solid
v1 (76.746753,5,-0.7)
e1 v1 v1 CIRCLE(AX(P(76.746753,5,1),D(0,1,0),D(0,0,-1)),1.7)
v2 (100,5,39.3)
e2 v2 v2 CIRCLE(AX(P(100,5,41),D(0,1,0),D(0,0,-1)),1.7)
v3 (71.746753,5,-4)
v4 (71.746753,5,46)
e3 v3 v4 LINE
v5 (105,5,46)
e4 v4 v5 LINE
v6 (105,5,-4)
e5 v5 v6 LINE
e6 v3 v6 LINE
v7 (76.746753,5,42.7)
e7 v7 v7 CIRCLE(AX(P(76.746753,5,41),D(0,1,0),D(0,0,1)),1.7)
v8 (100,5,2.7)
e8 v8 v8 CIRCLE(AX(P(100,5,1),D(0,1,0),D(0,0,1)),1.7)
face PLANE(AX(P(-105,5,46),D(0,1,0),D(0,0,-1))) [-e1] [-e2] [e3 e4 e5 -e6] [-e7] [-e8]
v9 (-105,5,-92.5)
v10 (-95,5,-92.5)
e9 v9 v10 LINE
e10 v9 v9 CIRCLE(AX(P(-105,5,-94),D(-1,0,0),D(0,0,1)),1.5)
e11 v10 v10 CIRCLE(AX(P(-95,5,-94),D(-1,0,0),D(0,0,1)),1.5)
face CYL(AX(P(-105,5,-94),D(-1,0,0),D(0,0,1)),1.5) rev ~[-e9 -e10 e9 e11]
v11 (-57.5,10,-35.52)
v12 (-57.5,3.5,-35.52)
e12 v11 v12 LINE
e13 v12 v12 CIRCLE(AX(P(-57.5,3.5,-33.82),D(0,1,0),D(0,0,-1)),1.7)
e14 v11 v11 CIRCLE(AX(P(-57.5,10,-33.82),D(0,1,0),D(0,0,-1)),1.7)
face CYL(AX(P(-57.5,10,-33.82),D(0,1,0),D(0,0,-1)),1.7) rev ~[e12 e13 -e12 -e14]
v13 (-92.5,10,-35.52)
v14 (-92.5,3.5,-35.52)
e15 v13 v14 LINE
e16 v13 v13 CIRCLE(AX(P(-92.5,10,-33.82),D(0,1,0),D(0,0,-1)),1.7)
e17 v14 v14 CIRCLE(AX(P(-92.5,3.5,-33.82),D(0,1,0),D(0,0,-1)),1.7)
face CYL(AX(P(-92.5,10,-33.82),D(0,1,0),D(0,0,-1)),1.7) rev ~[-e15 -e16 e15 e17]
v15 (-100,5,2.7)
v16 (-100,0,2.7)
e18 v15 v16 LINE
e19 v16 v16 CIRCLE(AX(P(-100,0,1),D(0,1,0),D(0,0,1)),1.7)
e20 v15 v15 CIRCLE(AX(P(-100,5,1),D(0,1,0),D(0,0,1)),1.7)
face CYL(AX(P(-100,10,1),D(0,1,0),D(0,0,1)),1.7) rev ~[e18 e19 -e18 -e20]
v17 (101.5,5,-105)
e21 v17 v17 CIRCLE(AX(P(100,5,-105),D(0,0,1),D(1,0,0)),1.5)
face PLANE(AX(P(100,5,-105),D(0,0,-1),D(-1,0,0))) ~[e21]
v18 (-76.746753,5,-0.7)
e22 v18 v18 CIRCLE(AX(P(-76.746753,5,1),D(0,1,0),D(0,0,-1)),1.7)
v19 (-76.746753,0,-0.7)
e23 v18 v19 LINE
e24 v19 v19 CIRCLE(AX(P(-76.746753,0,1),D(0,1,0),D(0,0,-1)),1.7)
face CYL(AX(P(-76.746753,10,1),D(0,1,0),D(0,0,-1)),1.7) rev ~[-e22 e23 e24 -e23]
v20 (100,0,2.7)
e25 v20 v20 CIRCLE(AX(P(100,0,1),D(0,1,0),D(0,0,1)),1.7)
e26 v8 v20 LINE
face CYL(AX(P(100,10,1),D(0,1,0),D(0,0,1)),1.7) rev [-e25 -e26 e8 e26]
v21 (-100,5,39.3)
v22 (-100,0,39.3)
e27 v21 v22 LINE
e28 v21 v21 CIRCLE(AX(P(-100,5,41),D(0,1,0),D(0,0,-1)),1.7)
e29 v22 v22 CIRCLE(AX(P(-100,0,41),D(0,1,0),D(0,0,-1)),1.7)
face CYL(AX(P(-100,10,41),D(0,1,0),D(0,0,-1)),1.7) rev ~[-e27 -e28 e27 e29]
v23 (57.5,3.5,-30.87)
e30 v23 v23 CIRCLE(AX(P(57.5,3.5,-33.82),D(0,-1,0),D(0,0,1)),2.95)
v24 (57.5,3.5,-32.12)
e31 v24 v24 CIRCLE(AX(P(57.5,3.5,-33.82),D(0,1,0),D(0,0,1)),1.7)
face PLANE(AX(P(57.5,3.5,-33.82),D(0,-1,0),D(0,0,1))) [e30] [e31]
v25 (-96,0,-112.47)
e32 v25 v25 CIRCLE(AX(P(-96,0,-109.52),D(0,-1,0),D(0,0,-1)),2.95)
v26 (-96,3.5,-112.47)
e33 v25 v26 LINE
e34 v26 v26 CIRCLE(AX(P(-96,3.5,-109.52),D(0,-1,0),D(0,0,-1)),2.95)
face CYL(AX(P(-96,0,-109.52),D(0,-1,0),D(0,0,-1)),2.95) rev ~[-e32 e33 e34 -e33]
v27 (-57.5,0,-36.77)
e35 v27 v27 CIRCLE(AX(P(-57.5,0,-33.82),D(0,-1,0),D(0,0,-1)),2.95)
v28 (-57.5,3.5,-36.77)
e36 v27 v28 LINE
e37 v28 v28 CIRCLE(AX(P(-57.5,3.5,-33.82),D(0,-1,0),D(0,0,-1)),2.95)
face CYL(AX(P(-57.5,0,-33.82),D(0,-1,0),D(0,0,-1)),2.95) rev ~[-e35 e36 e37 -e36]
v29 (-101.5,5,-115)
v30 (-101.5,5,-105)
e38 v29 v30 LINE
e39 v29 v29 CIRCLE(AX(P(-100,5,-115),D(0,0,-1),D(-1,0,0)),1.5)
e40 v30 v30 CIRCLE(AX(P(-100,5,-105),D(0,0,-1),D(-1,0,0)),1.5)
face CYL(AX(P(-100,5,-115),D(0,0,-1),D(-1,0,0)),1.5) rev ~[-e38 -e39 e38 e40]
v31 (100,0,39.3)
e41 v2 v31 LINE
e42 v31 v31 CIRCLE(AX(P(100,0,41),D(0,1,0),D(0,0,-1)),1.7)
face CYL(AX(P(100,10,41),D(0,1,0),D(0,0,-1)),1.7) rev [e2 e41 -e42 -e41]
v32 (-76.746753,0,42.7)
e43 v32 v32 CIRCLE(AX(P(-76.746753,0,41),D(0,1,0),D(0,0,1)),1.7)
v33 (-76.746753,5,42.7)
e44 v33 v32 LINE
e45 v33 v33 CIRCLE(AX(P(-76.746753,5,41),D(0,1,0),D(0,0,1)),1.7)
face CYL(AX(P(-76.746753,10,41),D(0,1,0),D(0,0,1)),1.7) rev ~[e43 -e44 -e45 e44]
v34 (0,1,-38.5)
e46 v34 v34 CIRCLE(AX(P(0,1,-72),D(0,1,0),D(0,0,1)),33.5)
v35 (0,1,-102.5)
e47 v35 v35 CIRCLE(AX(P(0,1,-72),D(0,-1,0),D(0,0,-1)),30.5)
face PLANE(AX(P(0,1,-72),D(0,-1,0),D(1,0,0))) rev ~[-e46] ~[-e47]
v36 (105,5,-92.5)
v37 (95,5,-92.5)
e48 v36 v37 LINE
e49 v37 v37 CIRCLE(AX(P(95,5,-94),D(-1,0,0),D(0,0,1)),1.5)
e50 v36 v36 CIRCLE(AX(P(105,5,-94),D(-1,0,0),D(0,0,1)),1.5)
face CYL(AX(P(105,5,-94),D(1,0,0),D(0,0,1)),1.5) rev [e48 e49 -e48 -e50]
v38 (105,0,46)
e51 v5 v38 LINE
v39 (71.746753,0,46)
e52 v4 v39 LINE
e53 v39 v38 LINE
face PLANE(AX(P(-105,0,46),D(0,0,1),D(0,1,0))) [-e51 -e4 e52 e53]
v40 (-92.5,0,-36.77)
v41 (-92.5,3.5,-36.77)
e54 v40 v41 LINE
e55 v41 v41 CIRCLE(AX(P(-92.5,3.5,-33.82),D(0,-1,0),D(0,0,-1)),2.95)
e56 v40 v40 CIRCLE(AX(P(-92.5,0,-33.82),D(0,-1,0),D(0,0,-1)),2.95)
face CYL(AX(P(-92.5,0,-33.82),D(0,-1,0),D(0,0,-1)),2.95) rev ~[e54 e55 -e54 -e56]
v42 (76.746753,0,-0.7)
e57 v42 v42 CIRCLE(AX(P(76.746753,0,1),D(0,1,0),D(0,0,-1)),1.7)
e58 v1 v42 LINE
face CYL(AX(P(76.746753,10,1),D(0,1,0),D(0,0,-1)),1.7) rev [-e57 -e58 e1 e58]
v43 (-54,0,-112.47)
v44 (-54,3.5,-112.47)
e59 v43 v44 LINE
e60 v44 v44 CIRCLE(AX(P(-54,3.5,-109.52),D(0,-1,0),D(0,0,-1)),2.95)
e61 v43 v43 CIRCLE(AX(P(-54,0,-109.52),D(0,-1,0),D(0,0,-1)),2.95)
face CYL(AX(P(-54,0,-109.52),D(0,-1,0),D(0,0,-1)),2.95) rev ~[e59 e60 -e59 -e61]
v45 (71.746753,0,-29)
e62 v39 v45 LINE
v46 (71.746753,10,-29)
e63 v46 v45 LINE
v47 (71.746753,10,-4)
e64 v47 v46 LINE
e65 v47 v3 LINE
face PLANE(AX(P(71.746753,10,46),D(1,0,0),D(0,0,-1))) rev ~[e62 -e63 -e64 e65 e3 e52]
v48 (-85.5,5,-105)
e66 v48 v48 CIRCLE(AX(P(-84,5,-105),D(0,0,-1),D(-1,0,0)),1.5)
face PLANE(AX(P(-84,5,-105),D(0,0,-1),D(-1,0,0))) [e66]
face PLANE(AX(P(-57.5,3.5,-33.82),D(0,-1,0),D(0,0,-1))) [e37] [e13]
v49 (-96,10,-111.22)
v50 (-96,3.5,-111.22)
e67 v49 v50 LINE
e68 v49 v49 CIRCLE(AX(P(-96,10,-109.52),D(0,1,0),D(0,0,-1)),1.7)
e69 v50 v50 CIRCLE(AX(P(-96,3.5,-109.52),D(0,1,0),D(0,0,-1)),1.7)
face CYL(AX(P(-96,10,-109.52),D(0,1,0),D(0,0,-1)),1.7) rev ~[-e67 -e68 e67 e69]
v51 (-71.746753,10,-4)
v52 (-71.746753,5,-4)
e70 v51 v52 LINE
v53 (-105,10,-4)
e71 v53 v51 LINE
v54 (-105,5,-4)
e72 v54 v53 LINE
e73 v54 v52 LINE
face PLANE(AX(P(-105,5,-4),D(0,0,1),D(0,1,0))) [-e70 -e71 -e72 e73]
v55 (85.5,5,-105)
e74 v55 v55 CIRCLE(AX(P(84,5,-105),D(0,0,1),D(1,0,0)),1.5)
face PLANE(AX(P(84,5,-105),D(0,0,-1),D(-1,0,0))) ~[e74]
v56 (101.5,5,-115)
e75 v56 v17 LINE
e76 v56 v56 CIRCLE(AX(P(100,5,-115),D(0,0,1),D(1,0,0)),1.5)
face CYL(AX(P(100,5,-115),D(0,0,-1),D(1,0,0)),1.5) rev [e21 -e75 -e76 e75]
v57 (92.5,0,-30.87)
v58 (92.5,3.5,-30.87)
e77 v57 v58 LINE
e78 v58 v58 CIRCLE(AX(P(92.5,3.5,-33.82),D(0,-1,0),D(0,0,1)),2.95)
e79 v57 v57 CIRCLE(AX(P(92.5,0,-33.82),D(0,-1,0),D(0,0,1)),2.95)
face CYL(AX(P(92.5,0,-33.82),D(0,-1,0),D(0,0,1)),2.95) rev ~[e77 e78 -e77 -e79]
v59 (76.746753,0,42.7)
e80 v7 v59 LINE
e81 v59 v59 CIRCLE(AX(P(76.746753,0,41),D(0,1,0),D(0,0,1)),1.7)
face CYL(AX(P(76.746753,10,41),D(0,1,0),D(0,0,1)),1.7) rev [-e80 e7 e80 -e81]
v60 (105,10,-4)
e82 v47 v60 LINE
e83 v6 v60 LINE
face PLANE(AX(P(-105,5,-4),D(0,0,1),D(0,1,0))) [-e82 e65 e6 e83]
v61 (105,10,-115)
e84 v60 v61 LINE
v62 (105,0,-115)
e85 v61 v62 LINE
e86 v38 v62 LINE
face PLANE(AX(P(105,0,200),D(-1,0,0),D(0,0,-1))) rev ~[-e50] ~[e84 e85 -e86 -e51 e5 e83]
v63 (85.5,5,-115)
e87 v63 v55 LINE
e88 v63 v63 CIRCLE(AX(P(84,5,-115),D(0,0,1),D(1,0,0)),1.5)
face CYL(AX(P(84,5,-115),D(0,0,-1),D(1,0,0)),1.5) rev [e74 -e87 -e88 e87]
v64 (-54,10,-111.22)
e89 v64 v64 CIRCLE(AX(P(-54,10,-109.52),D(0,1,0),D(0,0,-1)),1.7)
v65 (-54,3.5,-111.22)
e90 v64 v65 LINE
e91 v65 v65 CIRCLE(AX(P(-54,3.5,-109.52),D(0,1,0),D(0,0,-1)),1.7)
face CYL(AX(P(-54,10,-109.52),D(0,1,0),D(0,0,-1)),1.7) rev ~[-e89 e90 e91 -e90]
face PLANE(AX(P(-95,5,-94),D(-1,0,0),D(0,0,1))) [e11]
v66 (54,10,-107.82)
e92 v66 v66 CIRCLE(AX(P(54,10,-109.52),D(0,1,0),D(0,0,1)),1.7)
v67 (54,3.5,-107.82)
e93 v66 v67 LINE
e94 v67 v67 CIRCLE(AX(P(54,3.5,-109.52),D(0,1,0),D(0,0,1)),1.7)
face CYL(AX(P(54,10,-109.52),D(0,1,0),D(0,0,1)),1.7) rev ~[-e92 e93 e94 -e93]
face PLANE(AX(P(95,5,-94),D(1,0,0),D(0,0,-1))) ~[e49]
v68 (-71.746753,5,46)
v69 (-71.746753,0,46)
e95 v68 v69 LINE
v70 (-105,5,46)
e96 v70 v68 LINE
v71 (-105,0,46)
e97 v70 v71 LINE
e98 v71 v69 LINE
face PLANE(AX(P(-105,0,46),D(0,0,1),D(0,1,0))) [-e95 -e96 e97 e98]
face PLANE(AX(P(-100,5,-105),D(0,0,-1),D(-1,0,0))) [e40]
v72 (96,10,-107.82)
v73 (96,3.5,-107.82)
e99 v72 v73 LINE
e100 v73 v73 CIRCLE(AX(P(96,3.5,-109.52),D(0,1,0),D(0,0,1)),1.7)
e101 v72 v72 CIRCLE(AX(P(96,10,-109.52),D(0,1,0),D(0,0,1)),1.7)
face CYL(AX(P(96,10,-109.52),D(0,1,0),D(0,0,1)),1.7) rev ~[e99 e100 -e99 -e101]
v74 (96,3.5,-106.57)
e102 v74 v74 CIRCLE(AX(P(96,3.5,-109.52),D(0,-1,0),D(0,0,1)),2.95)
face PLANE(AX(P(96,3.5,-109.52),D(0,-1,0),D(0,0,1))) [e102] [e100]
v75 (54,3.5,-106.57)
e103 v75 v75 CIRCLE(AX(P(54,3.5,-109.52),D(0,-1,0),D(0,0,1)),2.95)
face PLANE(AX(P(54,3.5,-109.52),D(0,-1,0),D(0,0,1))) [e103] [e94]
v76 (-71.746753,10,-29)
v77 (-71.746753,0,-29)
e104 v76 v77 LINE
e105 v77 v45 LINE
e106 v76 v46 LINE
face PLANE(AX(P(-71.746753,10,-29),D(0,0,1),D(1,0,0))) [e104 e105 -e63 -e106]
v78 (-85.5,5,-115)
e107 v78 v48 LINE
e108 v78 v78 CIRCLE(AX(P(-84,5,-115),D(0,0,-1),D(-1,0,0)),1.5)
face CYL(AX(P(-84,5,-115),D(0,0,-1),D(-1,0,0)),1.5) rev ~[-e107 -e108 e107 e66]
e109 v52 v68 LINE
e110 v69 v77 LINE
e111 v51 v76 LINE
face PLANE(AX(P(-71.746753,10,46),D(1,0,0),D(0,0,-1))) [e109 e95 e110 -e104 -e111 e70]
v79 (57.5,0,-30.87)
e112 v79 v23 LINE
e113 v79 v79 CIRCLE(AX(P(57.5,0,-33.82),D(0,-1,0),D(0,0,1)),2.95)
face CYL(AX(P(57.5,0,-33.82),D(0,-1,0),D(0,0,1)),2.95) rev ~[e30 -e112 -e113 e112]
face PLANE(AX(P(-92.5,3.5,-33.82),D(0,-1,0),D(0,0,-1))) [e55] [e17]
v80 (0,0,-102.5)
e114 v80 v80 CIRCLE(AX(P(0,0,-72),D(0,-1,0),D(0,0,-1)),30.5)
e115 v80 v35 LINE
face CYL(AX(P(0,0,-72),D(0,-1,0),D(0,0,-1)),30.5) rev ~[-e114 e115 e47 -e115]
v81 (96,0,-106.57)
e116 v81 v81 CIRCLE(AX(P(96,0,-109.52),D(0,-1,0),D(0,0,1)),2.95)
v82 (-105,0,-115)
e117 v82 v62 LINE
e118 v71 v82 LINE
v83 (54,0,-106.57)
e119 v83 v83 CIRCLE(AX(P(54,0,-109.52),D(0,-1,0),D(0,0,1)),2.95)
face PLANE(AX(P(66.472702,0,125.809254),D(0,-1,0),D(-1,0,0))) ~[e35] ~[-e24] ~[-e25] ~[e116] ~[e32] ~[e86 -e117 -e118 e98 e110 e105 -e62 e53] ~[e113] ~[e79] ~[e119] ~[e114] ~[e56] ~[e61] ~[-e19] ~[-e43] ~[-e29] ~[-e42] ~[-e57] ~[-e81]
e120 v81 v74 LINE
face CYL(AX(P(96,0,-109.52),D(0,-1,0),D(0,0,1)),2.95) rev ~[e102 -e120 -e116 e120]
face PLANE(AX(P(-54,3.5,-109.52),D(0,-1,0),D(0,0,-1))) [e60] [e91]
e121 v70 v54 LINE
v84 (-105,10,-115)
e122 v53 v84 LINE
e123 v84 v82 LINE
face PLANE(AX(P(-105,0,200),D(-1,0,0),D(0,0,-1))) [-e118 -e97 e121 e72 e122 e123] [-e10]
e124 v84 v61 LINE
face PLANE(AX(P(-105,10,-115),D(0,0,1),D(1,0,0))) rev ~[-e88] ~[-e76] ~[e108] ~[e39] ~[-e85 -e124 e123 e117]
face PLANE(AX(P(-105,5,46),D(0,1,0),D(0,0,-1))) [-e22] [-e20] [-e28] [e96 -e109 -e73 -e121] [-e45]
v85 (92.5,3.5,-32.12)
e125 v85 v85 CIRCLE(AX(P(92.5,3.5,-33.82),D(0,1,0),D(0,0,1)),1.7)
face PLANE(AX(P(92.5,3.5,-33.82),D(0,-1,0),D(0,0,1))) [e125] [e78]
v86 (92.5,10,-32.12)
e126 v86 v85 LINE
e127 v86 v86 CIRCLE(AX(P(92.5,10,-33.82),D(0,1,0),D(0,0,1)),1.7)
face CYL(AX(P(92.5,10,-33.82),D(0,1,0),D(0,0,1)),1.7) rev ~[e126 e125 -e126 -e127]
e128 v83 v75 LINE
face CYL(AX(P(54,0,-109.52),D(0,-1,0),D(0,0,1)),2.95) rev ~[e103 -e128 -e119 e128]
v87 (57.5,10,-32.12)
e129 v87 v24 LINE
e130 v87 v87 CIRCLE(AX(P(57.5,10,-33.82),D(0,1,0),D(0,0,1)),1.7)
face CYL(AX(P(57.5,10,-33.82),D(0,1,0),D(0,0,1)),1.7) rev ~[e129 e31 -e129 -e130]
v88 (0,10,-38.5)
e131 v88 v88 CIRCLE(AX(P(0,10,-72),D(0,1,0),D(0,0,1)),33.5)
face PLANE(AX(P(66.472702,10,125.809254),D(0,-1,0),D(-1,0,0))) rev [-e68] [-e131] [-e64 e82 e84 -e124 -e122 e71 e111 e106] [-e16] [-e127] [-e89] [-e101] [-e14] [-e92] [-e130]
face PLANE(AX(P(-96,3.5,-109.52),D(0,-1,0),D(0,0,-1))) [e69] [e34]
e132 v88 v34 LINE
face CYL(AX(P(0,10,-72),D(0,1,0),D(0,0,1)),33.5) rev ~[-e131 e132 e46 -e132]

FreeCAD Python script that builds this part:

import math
import FreeCAD as App
import Part
import Sketcher
Q = App.Units.Quantity

doc = App.newDocument("Part")
body = doc.addObject("PartDesign::Body", "Body")

# Sketch on XZ plane
sketch1 = body.newObject("Sketcher::SketchObject", "Sketch")
sketch1.AttachmentSupport = (doc.getObject("XZ_Plane"), [""])
sketch1.MapMode = "FlatFace"
sketch1.addGeometry(Part.LineSegment(App.Vector(-105, -200, 0), App.Vector(-105, 200, 0)), False)
sketch1.addGeometry(Part.LineSegment(App.Vector(-105, 200, 0), App.Vector(105, 200, 0)), False)
sketch1.addGeometry(Part.LineSegment(App.Vector(105, 200, 0), App.Vector(105, -200, 0)), False)
sketch1.addGeometry(Part.LineSegment(App.Vector(105, -200, 0), App.Vector(-105, -200, 0)), False)
sketch1.addConstraint(Sketcher.Constraint("Coincident", 0, 2, 1, 1))
sketch1.addConstraint(Sketcher.Constraint("Coincident", 1, 2, 2, 1))
sketch1.addConstraint(Sketcher.Constraint("Coincident", 2, 2, 3, 1))
sketch1.addConstraint(Sketcher.Constraint("Coincident", 3, 2, 0, 1))
sketch1.addConstraint(Sketcher.Constraint("Vertical", 0))
sketch1.addConstraint(Sketcher.Constraint("Horizontal", 1))
sketch1.addConstraint(Sketcher.Constraint("Vertical", 2))
sketch1.addConstraint(Sketcher.Constraint("Horizontal", 3))
sketch1.addConstraint(Sketcher.Constraint("Symmetric", 0, 2, 2, 2, -1, 1))
sketch1.addConstraint(Sketcher.Constraint("DistanceX", 1, 1, 1, 2, Q("210 mm")))
sketch1.addConstraint(Sketcher.Constraint("DistanceY", 0, 1, 0, 2, Q("400 mm")))
pad1 = body.newObject("PartDesign::Pad", "Pad")
pad1.Profile = sketch1
pad1.Length = 10
pad1.Reversed = True

# Sketch on XZ plane
sketch2 = body.newObject("Sketcher::SketchObject", "Sketch001")
sketch2.AttachmentSupport = (doc.getObject("XZ_Plane"), [""])
sketch2.MapMode = "FlatFace"
sketch2.AttachmentOffset = App.Placement(App.Vector(0, 0, -10), App.Rotation())
sketch2.addGeometry(Part.LineSegment(App.Vector(18, 200, 0), App.Vector(105, 200, 0)), False)
sketch2.addGeometry(Part.LineSegment(App.Vector(105, 200, 0), App.Vector(105, 46, 0)), False)
sketch2.addGeometry(Part.LineSegment(App.Vector(105, 46, 0), App.Vector(18, 200, 0)), False)
sketch2.addGeometry(Part.LineSegment(App.Vector(-18, 200, 0), App.Vector(-105, 46, 0)), False)
sketch2.addGeometry(Part.LineSegment(App.Vector(-105, 46, 0), App.Vector(-105, 200, 0)), False)
sketch2.addGeometry(Part.LineSegment(App.Vector(-105, 200, 0), App.Vector(-18, 200, 0)), False)
sketch2.addGeometry(Part.LineSegment(App.Vector(-105, -200, 0), App.Vector(-105, -115, 0)), False)
sketch2.addGeometry(Part.LineSegment(App.Vector(-105, -115, 0), App.Vector(105, -115, 0)), False)
sketch2.addGeometry(Part.LineSegment(App.Vector(105, -115, 0), App.Vector(105, -200, 0)), False)
sketch2.addGeometry(Part.LineSegment(App.Vector(105, -200, 0), App.Vector(-105, -200, 0)), False)
sketch2.addGeometry(Part.LineSegment(App.Vector(72, 46, 0), App.Vector(-72, 46, 0)), False)
sketch2.addGeometry(Part.LineSegment(App.Vector(-72, 46, 0), App.Vector(-3, 168, 0)), False)
sketch2.addGeometry(Part.LineSegment(App.Vector(-3, 168, 0), App.Vector(3, 168, 0)), False)
sketch2.addGeometry(Part.LineSegment(App.Vector(3, 168, 0), App.Vector(72, 46, 0)), False)
sketch2.addConstraint(Sketcher.Constraint("Coincident", 0, 2, 1, 1))
sketch2.addConstraint(Sketcher.Constraint("Coincident", 1, 2, 2, 1))
sketch2.addConstraint(Sketcher.Constraint("Coincident", 2, 2, 0, 1))
sketch2.addConstraint(Sketcher.Constraint("Coincident", 3, 2, 4, 1))
sketch2.addConstraint(Sketcher.Constraint("Coincident", 4, 2, 5, 1))
sketch2.addConstraint(Sketcher.Constraint("Coincident", 5, 2, 3, 1))
sketch2.addConstraint(Sketcher.Constraint("Coincident", 6, 2, 7, 1))
sketch2.addConstraint(Sketcher.Constraint("Coincident", 7, 2, 8, 1))
sketch2.addConstraint(Sketcher.Constraint("Coincident", 8, 2, 9, 1))
sketch2.addConstraint(Sketcher.Constraint("Coincident", 9, 2, 6, 1))
sketch2.addConstraint(Sketcher.Constraint("Coincident", 10, 2, 11, 1))
sketch2.addConstraint(Sketcher.Constraint("Coincident", 11, 2, 12, 1))
sketch2.addConstraint(Sketcher.Constraint("Coincident", 12, 2, 13, 1))
sketch2.addConstraint(Sketcher.Constraint("Coincident", 13, 2, 10, 1))
sketch2.addConstraint(Sketcher.Constraint("Horizontal", 0))
sketch2.addConstraint(Sketcher.Constraint("Vertical", 1))
sketch2.addConstraint(Sketcher.Constraint("Vertical", 4))
sketch2.addConstraint(Sketcher.Constraint("Horizontal", 5))
sketch2.addConstraint(Sketcher.Constraint("Vertical", 6))
sketch2.addConstraint(Sketcher.Constraint("Horizontal", 7))
sketch2.addConstraint(Sketcher.Constraint("Vertical", 8))
sketch2.addConstraint(Sketcher.Constraint("Horizontal", 9))
sketch2.addConstraint(Sketcher.Constraint("Horizontal", 10))
sketch2.addConstraint(Sketcher.Constraint("Horizontal", 12))
sketch2.addConstraint(Sketcher.Constraint("Symmetric", 4, 2, 8, 2, -1, 1))
sketch2.addConstraint(Sketcher.Constraint("Symmetric", 0, 2, 9, 2, -1, 1))
sketch2.addConstraint(Sketcher.Constraint("Symmetric", 1, 2, 3, 2, -2))
sketch2.addConstraint(Sketcher.Constraint("Parallel", 3, 11))
sketch2.addConstraint(Sketcher.Constraint("Parallel", 2, 13))
sketch2.addConstraint(Sketcher.Constraint("Horizontal", 3, 2, 10, 2))
sketch2.addConstraint(Sketcher.Constraint("Equal", 0, 5))
sketch2.addConstraint(Sketcher.Constraint("DistanceX", 0, 1, 0, 2, Q("87 mm")))
sketch2.addConstraint(Sketcher.Constraint("DistanceX", 7, 1, 7, 2, Q("210 mm")))
sketch2.addConstraint(Sketcher.Constraint("DistanceY", 1, 2, 1, 1, Q("154 mm")))
sketch2.addConstraint(Sketcher.Constraint("DistanceY", 6, 1, 6, 2, Q("85 mm")))
sketch2.addConstraint(Sketcher.Constraint("DistanceY", -1, 1, 0, 2, Q("200 mm")))
sketch2.addConstraint(Sketcher.Constraint("DistanceY", -1, 1, 11, 2, Q("168 mm")))
sketch2.addConstraint(Sketcher.Constraint("DistanceX", 12, 1, 12, 2, Q("5.649351 mm")))
sketch2.addConstraint(Sketcher.Constraint("DistanceX", 10, 2, -1, 1, Q("71.746753 mm")))
pocket1 = body.newObject("PartDesign::Pocket", "Pocket")
pocket1.Profile = sketch2
pocket1.Length = 10
pocket1.Reversed = True

# Sketch on XZ plane
sketch3 = body.newObject("Sketcher::SketchObject", "Sketch002")
sketch3.AttachmentSupport = (doc.getObject("XZ_Plane"), [""])
sketch3.MapMode = "FlatFace"
sketch3.AttachmentOffset = App.Placement(App.Vector(0, 0, -10), App.Rotation())
sketch3.addGeometry(Part.Circle(App.Vector(-11, 195, 0), App.Vector(0, 0, 1), 1.7), False)
sketch3.addGeometry(Part.Circle(App.Vector(-11, 178.2, 0), App.Vector(0, 0, 1), 1.7), False)
sketch3.addGeometry(Part.Circle(App.Vector(11, 195, 0), App.Vector(0, 0, 1), 1.7), False)
sketch3.addGeometry(Part.Circle(App.Vector(11, 178.2, 0), App.Vector(0, 0, 1), 1.7), False)
sketch3.addConstraint(Sketcher.Constraint("Equal", 0, 1))
sketch3.addConstraint(Sketcher.Constraint("Equal", 1, 2))
sketch3.addConstraint(Sketcher.Constraint("Equal", 2, 3))
sketch3.addConstraint(Sketcher.Constraint("Symmetric", 0, 3, 2, 3, -2))
sketch3.addConstraint(Sketcher.Constraint("Symmetric", 1, 3, 3, 3, -2))
sketch3.addConstraint(Sketcher.Constraint("Vertical", 0, 3, 1, 3))
sketch3.addConstraint(Sketcher.Constraint("Diameter", 0, Q("3.4 mm")))
sketch3.addConstraint(Sketcher.Constraint("DistanceX", 0, 3, -1, 1, Q("11 mm")))
sketch3.addConstraint(Sketcher.Constraint("DistanceY", -1, 1, 0, 3, Q("195 mm")))
sketch3.addConstraint(Sketcher.Constraint("DistanceY", -1, 1, 1, 3, Q("178.18 mm")))
pocket2 = body.newObject("PartDesign::Pocket", "Pocket001")
pocket2.Profile = sketch3
pocket2.Type = "ThroughAll"
pocket2.Reversed = True

# Sketch on XZ plane
sketch4 = body.newObject("Sketcher::SketchObject", "Sketch003")
sketch4.AttachmentSupport = (doc.getObject("XZ_Plane"), [""])
sketch4.MapMode = "FlatFace"
sketch4.addGeometry(Part.LineSegment(App.Vector(-8.1, 196.7, 0), App.Vector(-11, 198.4, 0)), False)
sketch4.addGeometry(Part.LineSegment(App.Vector(-11, 198.4, 0), App.Vector(-13.9, 196.7, 0)), False)
sketch4.addGeometry(Part.LineSegment(App.Vector(-13.9, 196.7, 0), App.Vector(-13.9, 193.3, 0)), False)
sketch4.addGeometry(Part.LineSegment(App.Vector(-13.9, 193.3, 0), App.Vector(-11, 191.6, 0)), False)
sketch4.addGeometry(Part.LineSegment(App.Vector(-11, 191.6, 0), App.Vector(-8.1, 193.3, 0)), False)
sketch4.addGeometry(Part.LineSegment(App.Vector(-8.1, 193.3, 0), App.Vector(-8.1, 196.7, 0)), False)
sketch4.addGeometry(Part.LineSegment(App.Vector(11, 198.4, 0), App.Vector(8.1, 196.7, 0)), False)
sketch4.addGeometry(Part.LineSegment(App.Vector(8.1, 196.7, 0), App.Vector(8.1, 193.3, 0)), False)
sketch4.addGeometry(Part.LineSegment(App.Vector(8.1, 193.3, 0), App.Vector(11, 191.6, 0)), False)
sketch4.addGeometry(Part.LineSegment(App.Vector(11, 191.6, 0), App.Vector(13.9, 193.3, 0)), False)
sketch4.addGeometry(Part.LineSegment(App.Vector(13.9, 193.3, 0), App.Vector(13.9, 196.7, 0)), False)
sketch4.addGeometry(Part.LineSegment(App.Vector(13.9, 196.7, 0), App.Vector(11, 198.4, 0)), False)
sketch4.addGeometry(Part.LineSegment(App.Vector(-8.1, 176.5, 0), App.Vector(-8.1, 179.9, 0)), False)
sketch4.addGeometry(Part.LineSegment(App.Vector(-8.1, 179.9, 0), App.Vector(-11, 181.6, 0)), False)
sketch4.addGeometry(Part.LineSegment(App.Vector(-11, 181.6, 0), App.Vector(-13.9, 179.9, 0)), False)
sketch4.addGeometry(Part.LineSegment(App.Vector(-13.9, 179.9, 0), App.Vector(-13.9, 176.5, 0)), False)
sketch4.addGeometry(Part.LineSegment(App.Vector(-13.9, 176.5, 0), App.Vector(-11, 174.8, 0)), False)
sketch4.addGeometry(Part.LineSegment(App.Vector(-11, 174.8, 0), App.Vector(-8.1, 176.5, 0)), False)
sketch4.addGeometry(Part.LineSegment(App.Vector(8.1, 179.9, 0), App.Vector(8.1, 176.5, 0)), False)
sketch4.addGeometry(Part.LineSegment(App.Vector(8.1, 176.5, 0), App.Vector(11, 174.8, 0)), False)
sketch4.addGeometry(Part.LineSegment(App.Vector(11, 174.8, 0), App.Vector(13.9, 176.5, 0)), False)
sketch4.addGeometry(Part.LineSegment(App.Vector(13.9, 176.5, 0), App.Vector(13.9, 179.9, 0)), False)
sketch4.addGeometry(Part.LineSegment(App.Vector(13.9, 179.9, 0), App.Vector(11, 181.6, 0)), False)
sketch4.addGeometry(Part.LineSegment(App.Vector(11, 181.6, 0), App.Vector(8.1, 179.9, 0)), False)
sketch4.addConstraint(Sketcher.Constraint("Coincident", 0, 2, 1, 1))
sketch4.addConstraint(Sketcher.Constraint("Coincident", 1, 2, 2, 1))
sketch4.addConstraint(Sketcher.Constraint("Coincident", 2, 2, 3, 1))
sketch4.addConstraint(Sketcher.Constraint("Coincident", 3, 2, 4, 1))
sketch4.addConstraint(Sketcher.Constraint("Coincident", 4, 2, 5, 1))
sketch4.addConstraint(Sketcher.Constraint("Coincident", 5, 2, 0, 1))
sketch4.addConstraint(Sketcher.Constraint("Coincident", 6, 2, 7, 1))
sketch4.addConstraint(Sketcher.Constraint("Coincident", 7, 2, 8, 1))
sketch4.addConstraint(Sketcher.Constraint("Coincident", 8, 2, 9, 1))
sketch4.addConstraint(Sketcher.Constraint("Coincident", 9, 2, 10, 1))
sketch4.addConstraint(Sketcher.Constraint("Coincident", 10, 2, 11, 1))
sketch4.addConstraint(Sketcher.Constraint("Coincident", 11, 2, 6, 1))
sketch4.addConstraint(Sketcher.Constraint("Coincident", 12, 2, 13, 1))
sketch4.addConstraint(Sketcher.Constraint("Coincident", 13, 2, 14, 1))
sketch4.addConstraint(Sketcher.Constraint("Coincident", 14, 2, 15, 1))
sketch4.addConstraint(Sketcher.Constraint("Coincident", 15, 2, 16, 1))
sketch4.addConstraint(Sketcher.Constraint("Coincident", 16, 2, 17, 1))
sketch4.addConstraint(Sketcher.Constraint("Coincident", 17, 2, 12, 1))
sketch4.addConstraint(Sketcher.Constraint("Coincident", 18, 2, 19, 1))
sketch4.addConstraint(Sketcher.Constraint("Coincident", 19, 2, 20, 1))
sketch4.addConstraint(Sketcher.Constraint("Coincident", 20, 2, 21, 1))
sketch4.addConstraint(Sketcher.Constraint("Coincident", 21, 2, 22, 1))
sketch4.addConstraint(Sketcher.Constraint("Coincident", 22, 2, 23, 1))
sketch4.addConstraint(Sketcher.Constraint("Coincident", 23, 2, 18, 1))
sketch4.addConstraint(Sketcher.Constraint("Vertical", 2))
sketch4.addConstraint(Sketcher.Constraint("Vertical", 5))
sketch4.addConstraint(Sketcher.Constraint("Vertical", 7))
sketch4.addConstraint(Sketcher.Constraint("Vertical", 10))
sketch4.addConstraint(Sketcher.Constraint("Vertical", 12))
sketch4.addConstraint(Sketcher.Constraint("Vertical", 15))
sketch4.addConstraint(Sketcher.Constraint("Vertical", 18))
sketch4.addConstraint(Sketcher.Constraint("Vertical", 21))
sketch4.addConstraint(Sketcher.Constraint("Symmetric", 5, 2, 6, 2, -2))
sketch4.addConstraint(Sketcher.Constraint("Symmetric", 3, 2, 8, 2, -2))
sketch4.addConstraint(Sketcher.Constraint("Symmetric", 2, 2, 9, 2, -2))
sketch4.addConstraint(Sketcher.Constraint("Symmetric", 0, 2, 11, 2, -2))
sketch4.addConstraint(Sketcher.Constraint("Symmetric", 17, 2, 18, 2, -2))
sketch4.addConstraint(Sketcher.Constraint("Symmetric", 16, 2, 19, 2, -2))
sketch4.addConstraint(Sketcher.Constraint("Symmetric", 15, 2, 20, 2, -2))
sketch4.addConstraint(Sketcher.Constraint("Symmetric", 13, 2, 22, 2, -2))
sketch4.addConstraint(Sketcher.Constraint("Parallel", 0, 3))
sketch4.addConstraint(Sketcher.Constraint("Parallel", 1, 4))
sketch4.addConstraint(Sketcher.Constraint("Parallel", 4, 6))
sketch4.addConstraint(Sketcher.Constraint("Parallel", 3, 8))
sketch4.addConstraint(Sketcher.Constraint("Parallel", 8, 11))
sketch4.addConstraint(Sketcher.Constraint("Parallel", 11, 13))
sketch4.addConstraint(Sketcher.Constraint("Parallel", 9, 14))
sketch4.addConstraint(Sketcher.Constraint("Parallel", 13, 16))
sketch4.addConstraint(Sketcher.Constraint("Parallel", 14, 17))
sketch4.addConstraint(Sketcher.Constraint("Parallel", 19, 22))
sketch4.addConstraint(Sketcher.Constraint("Parallel", 20, 23))
sketch4.addConstraint(Sketcher.Constraint("Horizontal", 2, 2, 4, 2))
sketch4.addConstraint(Sketcher.Constraint("Horizontal", 1, 2, 5, 2))
sketch4.addConstraint(Sketcher.Constraint("Horizontal", 12, 2, 14, 2))
sketch4.addConstraint(Sketcher.Constraint("Horizontal", 15, 2, 17, 2))
sketch4.addConstraint(Sketcher.Constraint("Vertical", 5, 2, 12, 2))
sketch4.addConstraint(Sketcher.Constraint("Vertical", 3, 2, 13, 2))
sketch4.addConstraint(Sketcher.Constraint("Equal", 10, 12))
sketch4.addConstraint(Sketcher.Constraint("Angle", 0, Q("150 deg")))
sketch4.addConstraint(Sketcher.Constraint("DistanceX", 0, 2, -1, 1, Q("11 mm")))
sketch4.addConstraint(Sketcher.Constraint("DistanceX", 2, 2, 4, 2, Q("5.9 mm")))
sketch4.addConstraint(Sketcher.Constraint("DistanceY", 12, 2, 5, 2, Q("16.82 mm")))
sketch4.addConstraint(Sketcher.Constraint("DistanceY", 2, 2, 2, 1, Q("3.406367 mm")))
sketch4.addConstraint(Sketcher.Constraint("DistanceY", -1, 1, 0, 2, Q("198.406367 mm")))
pocket3 = body.newObject("PartDesign::Pocket", "Pocket002")
pocket3.Profile = sketch4
pocket3.Length = 4

# Sketch on XZ plane
sketch5 = body.newObject("Sketcher::SketchObject", "Sketch004")
sketch5.AttachmentSupport = (doc.getObject("XZ_Plane"), [""])
sketch5.MapMode = "FlatFace"
sketch5.addGeometry(Part.LineSegment(App.Vector(-18, 190, 0), App.Vector(-18, 183, 0)), False)
sketch5.addGeometry(Part.LineSegment(App.Vector(-18, 183, 0), App.Vector(18, 183, 0)), False)
sketch5.addGeometry(Part.LineSegment(App.Vector(18, 183, 0), App.Vector(18, 190, 0)), False)
sketch5.addGeometry(Part.LineSegment(App.Vector(18, 190, 0), App.Vector(-18, 190, 0)), False)
sketch5.addConstraint(Sketcher.Constraint("Coincident", 0, 2, 1, 1))
sketch5.addConstraint(Sketcher.Constraint("Coincident", 1, 2, 2, 1))
sketch5.addConstraint(Sketcher.Constraint("Coincident", 2, 2, 3, 1))
sketch5.addConstraint(Sketcher.Constraint("Coincident", 3, 2, 0, 1))
sketch5.addConstraint(Sketcher.Constraint("Vertical", 0))
sketch5.addConstraint(Sketcher.Constraint("Horizontal", 1))
sketch5.addConstraint(Sketcher.Constraint("Vertical", 2))
sketch5.addConstraint(Sketcher.Constraint("Horizontal", 3))
sketch5.addConstraint(Sketcher.Constraint("DistanceX", 1, 1, 1, 2, Q("35 mm")))
sketch5.addConstraint(Sketcher.Constraint("DistanceY", 0, 2, 0, 1, Q("7 mm")))
sketch5.addConstraint(Sketcher.Constraint("DistanceX", 0, 2, -1, 1, Q("17.5 mm")))
sketch5.addConstraint(Sketcher.Constraint("DistanceY", -1, 1, 0, 2, Q("183.09 mm")))
pocket4 = body.newObject("PartDesign::Pocket", "Pocket003")
pocket4.Profile = sketch5
pocket4.Length = 5

# Sketch on YZ plane
sketch6 = body.newObject("Sketcher::SketchObject", "Sketch005")
sketch6.AttachmentSupport = (doc.getObject("YZ_Plane"), [""])
sketch6.MapMode = "FlatFace"
sketch6.AttachmentOffset = App.Placement(App.Vector(0, 0, 17.5), App.Rotation())
sketch6.addGeometry(Part.LineSegment(App.Vector(8.5, 186.6, 0), App.Vector(5, 183.1, 0)), False)
sketch6.addGeometry(Part.LineSegment(App.Vector(5, 183.1, 0), App.Vector(5, 190.1, 0)), False)
sketch6.addGeometry(Part.LineSegment(App.Vector(5, 190.1, 0), App.Vector(8.5, 186.6, 0)), False)
sketch6.addConstraint(Sketcher.Constraint("Coincident", 0, 2, 1, 1))
sketch6.addConstraint(Sketcher.Constraint("Coincident", 1, 2, 2, 1))
sketch6.addConstraint(Sketcher.Constraint("Coincident", 2, 2, 0, 1))
sketch6.addConstraint(Sketcher.Constraint("Vertical", 1))
sketch6.addConstraint(Sketcher.Constraint("Perpendicular", 0, 2))
sketch6.addConstraint(Sketcher.Constraint("Equal", 0, 2))
sketch6.addConstraint(Sketcher.Constraint("DistanceY", 1, 1, 1, 2, Q("7 mm")))
sketch6.addConstraint(Sketcher.Constraint("DistanceX", -1, 1, 0, 2, Q("5 mm")))
sketch6.addConstraint(Sketcher.Constraint("DistanceY", -1, 1, 0, 2, Q("183.09 mm")))
pocket5 = body.newObject("PartDesign::Pocket", "Pocket004")
pocket5.Profile = sketch6
pocket5.Length = 35

# Sketch on XZ plane
sketch7 = body.newObject("Sketcher::SketchObject", "Sketch006")
sketch7.AttachmentSupport = (doc.getObject("XZ_Plane"), [""])
sketch7.MapMode = "FlatFace"
sketch7.AttachmentOffset = App.Placement(App.Vector(0, 0, -10), App.Rotation())
sketch7.addGeometry(Part.Circle(App.Vector(96, -109.5, 0), App.Vector(0, 0, 1), 1.7), False)
sketch7.addGeometry(Part.Circle(App.Vector(54, -109.5, 0), App.Vector(0, 0, 1), 1.7), False)
sketch7.addGeometry(Part.Circle(App.Vector(-54, -109.5, 0), App.Vector(0, 0, 1), 1.7), False)
sketch7.addGeometry(Part.Circle(App.Vector(-96, -109.5, 0), App.Vector(0, 0, 1), 1.7), False)
sketch7.addGeometry(Part.Circle(App.Vector(92.5, -33.8, 0), App.Vector(0, 0, 1), 1.7), False)
sketch7.addGeometry(Part.Circle(App.Vector(57.5, -33.8, 0), App.Vector(0, 0, 1), 1.7), False)
sketch7.addGeometry(Part.Circle(App.Vector(-92.5, -33.8, 0), App.Vector(0, 0, 1), 1.7), False)
sketch7.addGeometry(Part.Circle(App.Vector(-57.5, -33.8, 0), App.Vector(0, 0, 1), 1.7), False)
sketch7.addConstraint(Sketcher.Constraint("Equal", 0, 1))
sketch7.addConstraint(Sketcher.Constraint("Equal", 1, 2))
sketch7.addConstraint(Sketcher.Constraint("Equal", 2, 3))
sketch7.addConstraint(Sketcher.Constraint("Equal", 3, 4))
sketch7.addConstraint(Sketcher.Constraint("Equal", 4, 5))
sketch7.addConstraint(Sketcher.Constraint("Equal", 5, 6))
sketch7.addConstraint(Sketcher.Constraint("Equal", 6, 7))
sketch7.addConstraint(Sketcher.Constraint("Symmetric", 1, 3, 2, 3, -2))
sketch7.addConstraint(Sketcher.Constraint("Symmetric", 0, 3, 3, 3, -2))
sketch7.addConstraint(Sketcher.Constraint("Symmetric", 4, 3, 6, 3, -2))
sketch7.addConstraint(Sketcher.Constraint("Symmetric", 5, 3, 7, 3, -2))
sketch7.addConstraint(Sketcher.Constraint("Horizontal", 0, 3, 1, 3))
sketch7.addConstraint(Sketcher.Constraint("Horizontal", 4, 3, 5, 3))
sketch7.addConstraint(Sketcher.Constraint("Diameter", 0, Q("3.4 mm")))
sketch7.addConstraint(Sketcher.Constraint("DistanceX", -1, 1, 0, 3, Q("96 mm")))
sketch7.addConstraint(Sketcher.Constraint("DistanceX", -1, 1, 1, 3, Q("54 mm")))
sketch7.addConstraint(Sketcher.Constraint("DistanceX", 5, 3, 4, 3, Q("35 mm")))
sketch7.addConstraint(Sketcher.Constraint("DistanceX", 6, 3, 5, 3, Q("150 mm")))
sketch7.addConstraint(Sketcher.Constraint("DistanceY", 0, 3, 4, 3, Q("75.7 mm")))
sketch7.addConstraint(Sketcher.Constraint("DistanceY", 0, 3, -1, 1, Q("109.52 mm")))
pocket6 = body.newObject("PartDesign::Pocket", "Pocket005")
pocket6.Profile = sketch7
pocket6.Type = "ThroughAll"
pocket6.Reversed = True

# Sketch on XZ plane
sketch8 = body.newObject("Sketcher::SketchObject", "Sketch007")
sketch8.AttachmentSupport = (doc.getObject("XZ_Plane"), [""])
sketch8.MapMode = "FlatFace"
sketch8.AttachmentOffset = App.Placement(App.Vector(0, 0, -10), App.Rotation())
sketch8.addGeometry(Part.LineSegment(App.Vector(-72, -29, 0), App.Vector(-72, 46, 0)), False)
sketch8.addGeometry(Part.LineSegment(App.Vector(-72, 46, 0), App.Vector(72, 46, 0)), False)
sketch8.addGeometry(Part.LineSegment(App.Vector(72, 46, 0), App.Vector(72, -29, 0)), False)
sketch8.addGeometry(Part.LineSegment(App.Vector(72, -29, 0), App.Vector(-72, -29, 0)), False)
sketch8.addConstraint(Sketcher.Constraint("Coincident", 0, 2, 1, 1))
sketch8.addConstraint(Sketcher.Constraint("Coincident", 1, 2, 2, 1))
sketch8.addConstraint(Sketcher.Constraint("Coincident", 2, 2, 3, 1))
sketch8.addConstraint(Sketcher.Constraint("Coincident", 3, 2, 0, 1))
sketch8.addConstraint(Sketcher.Constraint("Vertical", 0))
sketch8.addConstraint(Sketcher.Constraint("Horizontal", 1))
sketch8.addConstraint(Sketcher.Constraint("Vertical", 2))
sketch8.addConstraint(Sketcher.Constraint("Horizontal", 3))
sketch8.addConstraint(Sketcher.Constraint("DistanceY", 0, 1, 0, 2, Q("75 mm")))
sketch8.addConstraint(Sketcher.Constraint("DistanceY", -1, 1, 0, 2, Q("46 mm")))
sketch8.addConstraint(Sketcher.Constraint("DistanceX", 1, 1, 1, 2, Q("143.493506 mm")))
sketch8.addConstraint(Sketcher.Constraint("DistanceX", 0, 2, -1, 1, Q("71.746753 mm")))
pocket7 = body.newObject("PartDesign::Pocket", "Pocket006")
pocket7.Profile = sketch8
pocket7.Type = "ThroughAll"
pocket7.Reversed = True

# Sketch on XZ plane
sketch9 = body.newObject("Sketcher::SketchObject", "Sketch008")
sketch9.AttachmentSupport = (doc.getObject("XZ_Plane"), [""])
sketch9.MapMode = "FlatFace"
sketch9.AttachmentOffset = App.Placement(App.Vector(0, 0, -10), App.Rotation())
sketch9.addGeometry(Part.LineSegment(App.Vector(-3, 168, 0), App.Vector(-72, 46, 0)), False)
sketch9.addGeometry(Part.ArcOfCircle(Part.Circle(App.Vector(56, 54, 0), App.Vector(0, 0, 1), 128), math.radians(117), math.radians(184)), False)
sketch9.addConstraint(Sketcher.Constraint("Coincident", 0, 1, 1, 1))
sketch9.addConstraint(Sketcher.Constraint("Coincident", 1, 2, 0, 2))
sketch9.addConstraint(Sketcher.Constraint("DistanceY", -1, 1, 0, 1, Q("168 mm")))
sketch9.addConstraint(Sketcher.Constraint("DistanceY", -1, 1, 1, 2, Q("46 mm")))
sketch9.addConstraint(Sketcher.Constraint("Radius", 1, Q("127.738656 mm")))
sketch9.addConstraint(Sketcher.Constraint("Distance", 0, Q("140.122278 mm")))
sketch9.addConstraint(Sketcher.Constraint("DistanceX", -1, 1, 1, 3, Q("55.711264 mm")))
pocket8 = body.newObject("PartDesign::Pocket", "Pocket007")
pocket8.Profile = sketch9
pocket8.Type = "ThroughAll"
pocket8.Reversed = True

# Sketch on XZ plane
sketch10 = body.newObject("Sketcher::SketchObject", "Sketch009")
sketch10.AttachmentSupport = (doc.getObject("XZ_Plane"), [""])
sketch10.MapMode = "FlatFace"
sketch10.AttachmentOffset = App.Placement(App.Vector(0, 0, -10), App.Rotation())
sketch10.addGeometry(Part.LineSegment(App.Vector(-18, 200, 0), App.Vector(-105, 46, 0)), False)
sketch10.addGeometry(Part.ArcOfCircle(Part.Circle(App.Vector(109, 27, 0), App.Vector(0, 0, 1), 215), math.radians(126), math.radians(175)), False)
sketch10.addConstraint(Sketcher.Constraint("Coincident", 0, 1, 1, 1))
sketch10.addConstraint(Sketcher.Constraint("Coincident", 1, 2, 0, 2))
sketch10.addConstraint(Sketcher.Constraint("DistanceX", 0, 1, -1, 1, Q("18 mm")))
sketch10.addConstraint(Sketcher.Constraint("DistanceY", -1, 1, 0, 1, Q("200 mm")))
sketch10.addConstraint(Sketcher.Constraint("DistanceX", 1, 2, -1, 1, Q("105 mm")))
sketch10.addConstraint(Sketcher.Constraint("DistanceY", -1, 1, 1, 2, Q("46 mm")))
sketch10.addConstraint(Sketcher.Constraint("Radius", 1, Q("214.782015 mm")))
pad2 = body.newObject("PartDesign::Pad", "Pad001")
pad2.Profile = sketch10
pad2.Length = 10
doc.recompute()

mirrored = body.newObject("PartDesign::Mirrored", "Mirrored")
mirrored.Originals = [pocket8, pad2]
mirrored.MirrorPlane = (doc.getObject("YZ_Plane"), [""])
body.Tip = mirrored

# Sketch on XZ plane
sketch11 = body.newObject("Sketcher::SketchObject", "Sketch010")
sketch11.AttachmentSupport = (doc.getObject("XZ_Plane"), [""])
sketch11.MapMode = "FlatFace"
sketch11.AttachmentOffset = App.Placement(App.Vector(0, 0, -10), App.Rotation())
sketch11.addGeometry(Part.Circle(App.Vector(-100, 1, 0), App.Vector(0, 0, 1), 1.7), False)
sketch11.addGeometry(Part.Circle(App.Vector(-76.7, 1, 0), App.Vector(0, 0, 1), 1.7), False)
sketch11.addGeometry(Part.Circle(App.Vector(-76.7, 41, 0), App.Vector(0, 0, 1), 1.7), False)
sketch11.addGeometry(Part.Circle(App.Vector(-100, 41, 0), App.Vector(0, 0, 1), 1.7), False)
sketch11.addConstraint(Sketcher.Constraint("Equal", 0, 1))
sketch11.addConstraint(Sketcher.Constraint("Equal", 1, 2))
sketch11.addConstraint(Sketcher.Constraint("Equal", 2, 3))
sketch11.addConstraint(Sketcher.Constraint("Horizontal", 0, 3, 1, 3))
sketch11.addConstraint(Sketcher.Constraint("Horizontal", 2, 3, 3, 3))
sketch11.addConstraint(Sketcher.Constraint("Vertical", 1, 3, 2, 3))
sketch11.addConstraint(Sketcher.Constraint("Vertical", 0, 3, 3, 3))
sketch11.addConstraint(Sketcher.Constraint("Diameter", 0, Q("3.4 mm")))
sketch11.addConstraint(Sketcher.Constraint("DistanceX", 0, 3, -1, 1, Q("100 mm")))
sketch11.addConstraint(Sketcher.Constraint("DistanceY", -1, 1, 0, 3, Q("1 mm")))
sketch11.addConstraint(Sketcher.Constraint("DistanceY", -1, 1, 2, 3, Q("41 mm")))
sketch11.addConstraint(Sketcher.Constraint("DistanceX", 1, 3, -1, 1, Q("76.746753 mm")))
pocket9 = body.newObject("PartDesign::Pocket", "Pocket008")
pocket9.Profile = sketch11
pocket9.Type = "ThroughAll"
pocket9.Reversed = True
doc.recompute()

mirrored2 = body.newObject("PartDesign::Mirrored", "Mirrored001")
mirrored2.Originals = [pocket9]
mirrored2.MirrorPlane = (doc.getObject("YZ_Plane"), [""])
body.Tip = mirrored2

# Sketch on YZ plane
sketch12 = body.newObject("Sketcher::SketchObject", "Sketch011")
sketch12.AttachmentSupport = (doc.getObject("YZ_Plane"), [""])
sketch12.MapMode = "FlatFace"
sketch12.AttachmentOffset = App.Placement(App.Vector(0, 0, -105), App.Rotation())
sketch12.addGeometry(Part.LineSegment(App.Vector(13, -4, 0), App.Vector(5, -4, 0)), False)
sketch12.addGeometry(Part.LineSegment(App.Vector(5, -4, 0), App.Vector(5, 46, 0)), False)
sketch12.addGeometry(Part.LineSegment(App.Vector(5, 46, 0), App.Vector(0, 46, 0)), False)
sketch12.addGeometry(Part.LineSegment(App.Vector(0, 46, 0), App.Vector(-60, 91, 0)), False)
sketch12.addGeometry(Part.LineSegment(App.Vector(-60, 91, 0), App.Vector(-41, 243, 0)), False)
sketch12.addGeometry(Part.LineSegment(App.Vector(-41, 243, 0), App.Vector(83, 201, 0)), False)
sketch12.addGeometry(Part.LineSegment(App.Vector(83, 201, 0), App.Vector(13, -4, 0)), False)
sketch12.addConstraint(Sketcher.Constraint("Coincident", 0, 2, 1, 1))
sketch12.addConstraint(Sketcher.Constraint("Coincident", 1, 2, 2, 1))
sketch12.addConstraint(Sketcher.Constraint("Coincident", 2, 2, 3, 1))
sketch12.addConstraint(Sketcher.Constraint("Coincident", 3, 2, 4, 1))
sketch12.addConstraint(Sketcher.Constraint("Coincident", 4, 2, 5, 1))
sketch12.addConstraint(Sketcher.Constraint("Coincident", 5, 2, 6, 1))
sketch12.addConstraint(Sketcher.Constraint("Coincident", 6, 2, 0, 1))
sketch12.addConstraint(Sketcher.Constraint("Horizontal", 0))
sketch12.addConstraint(Sketcher.Constraint("Vertical", 1))
sketch12.addConstraint(Sketcher.Constraint("Horizontal", 2))
sketch12.addConstraint(Sketcher.Constraint("PointOnObject", 2, 2, -2))
sketch12.addConstraint(Sketcher.Constraint("DistanceX", 2, 2, 2, 1, Q("5 mm")))
sketch12.addConstraint(Sketcher.Constraint("DistanceY", 1, 1, 1, 2, Q("50 mm")))
sketch12.addConstraint(Sketcher.Constraint("DistanceY", 0, 2, -1, 1, Q("4 mm")))
sketch12.addConstraint(Sketcher.Constraint("Distance", 3, Q("75.372722 mm")))
sketch12.addConstraint(Sketcher.Constraint("Distance", 5, Q("130.626732 mm")))
sketch12.addConstraint(Sketcher.Constraint("Distance", 6, Q("216.144279 mm")))
sketch12.addConstraint(Sketcher.Constraint("DistanceX", 0, 2, 0, 1, Q("8.101487 mm")))
sketch12.addConstraint(Sketcher.Constraint("DistanceX", 4, 2, -1, 1, Q("41.037631 mm")))
sketch12.addConstraint(Sketcher.Constraint("DistanceX", 3, 2, 4, 2, Q("19.247151 mm")))
sketch12.addConstraint(Sketcher.Constraint("DistanceY", 3, 2, 4, 2, Q("151.755729 mm")))
pocket10 = body.newObject("PartDesign::Pocket", "Pocket009")
pocket10.Profile = sketch12
pocket10.Type = "ThroughAll"
pocket10.Reversed = True

# Sketch on XZ plane
sketch13 = body.newObject("Sketcher::SketchObject", "Sketch012")
sketch13.AttachmentSupport = (doc.getObject("XZ_Plane"), [""])
sketch13.MapMode = "FlatFace"
sketch13.AttachmentOffset = App.Placement(App.Vector(0, 0, -10), App.Rotation())
sketch13.addGeometry(Part.Circle(App.Vector(0, -72, 0), App.Vector(0, 0, 1), 34), False)
sketch13.addConstraint(Sketcher.Constraint("PointOnObject", 0, 3, -2))
sketch13.addConstraint(Sketcher.Constraint("Diameter", 0, Q("67 mm")))
sketch13.addConstraint(Sketcher.Constraint("DistanceY", 0, 3, -1, 1, Q("72 mm")))
pocket11 = body.newObject("PartDesign::Pocket", "Pocket010")
pocket11.Profile = sketch13
pocket11.Type = "ThroughAll"
pocket11.Reversed = True

# Sketch on XZ plane
sketch14 = body.newObject("Sketcher::SketchObject", "Sketch013")
sketch14.AttachmentSupport = (doc.getObject("XZ_Plane"), [""])
sketch14.MapMode = "FlatFace"
sketch14.addGeometry(Part.Circle(App.Vector(0, -72, 0), App.Vector(0, 0, 1), 36), False)
sketch14.addGeometry(Part.Circle(App.Vector(0, -72, 0), App.Vector(0, 0, 1), 30), False)
sketch14.addConstraint(Sketcher.Constraint("Coincident", 1, 3, 0, 3))
sketch14.addConstraint(Sketcher.Constraint("PointOnObject", 0, 3, -2))
sketch14.addConstraint(Sketcher.Constraint("Diameter", 1, Q("61 mm")))
sketch14.addConstraint(Sketcher.Constraint("DistanceY", 0, 3, -1, 1, Q("72 mm")))
sketch14.addConstraint(Sketcher.Constraint("Diameter", 0, Q("72.012512 mm")))
pad3 = body.newObject("PartDesign::Pad", "Pad002")
pad3.Profile = sketch14
pad3.Length = 1
pad3.Reversed = True

# Sketch on YZ plane
sketch15 = body.newObject("Sketcher::SketchObject", "Sketch014")
sketch15.AttachmentSupport = (doc.getObject("YZ_Plane"), [""])
sketch15.MapMode = "FlatFace"
sketch15.AttachmentOffset = App.Placement(App.Vector(0, 0, -105), App.Rotation())
sketch15.addGeometry(Part.Circle(App.Vector(5, -94, 0), App.Vector(0, 0, 1), 1.5), False)
sketch15.addConstraint(Sketcher.Constraint("Diameter", 0, Q("3 mm")))
sketch15.addConstraint(Sketcher.Constraint("DistanceX", -1, 1, 0, 3, Q("5 mm")))
sketch15.addConstraint(Sketcher.Constraint("DistanceY", 0, 3, -1, 1, Q("94 mm")))
pocket12 = body.newObject("PartDesign::Pocket", "Pocket011")
pocket12.Profile = sketch15
pocket12.Length = 10
pocket12.Reversed = True

# Sketch on XY plane
sketch16 = body.newObject("Sketcher::SketchObject", "Sketch015")
sketch16.AttachmentSupport = (doc.getObject("XY_Plane"), [""])
sketch16.MapMode = "FlatFace"
sketch16.AttachmentOffset = App.Placement(App.Vector(0, 0, -115), App.Rotation())
sketch16.addGeometry(Part.Circle(App.Vector(-100, 5, 0), App.Vector(0, 0, 1), 1.5), False)
sketch16.addGeometry(Part.Circle(App.Vector(-84, 5, 0), App.Vector(0, 0, 1), 1.5), False)
sketch16.addConstraint(Sketcher.Constraint("Equal", 0, 1))
sketch16.addConstraint(Sketcher.Constraint("Horizontal", 0, 3, 1, 3))
sketch16.addConstraint(Sketcher.Constraint("Diameter", 0, Q("3 mm")))
sketch16.addConstraint(Sketcher.Constraint("DistanceX", 0, 3, -1, 1, Q("100 mm")))
sketch16.addConstraint(Sketcher.Constraint("DistanceY", -1, 1, 0, 3, Q("5 mm")))
sketch16.addConstraint(Sketcher.Constraint("DistanceX", 1, 3, -1, 1, Q("84 mm")))
pocket13 = body.newObject("PartDesign::Pocket", "Pocket012")
pocket13.Profile = sketch16
pocket13.Length = 10
pocket13.Reversed = True
doc.recompute()

mirrored3 = body.newObject("PartDesign::Mirrored", "Mirrored002")
mirrored3.Originals = [pocket12, pocket13]
mirrored3.MirrorPlane = (doc.getObject("YZ_Plane"), [""])
body.Tip = mirrored3

# Sketch on XZ plane
sketch17 = body.newObject("Sketcher::SketchObject", "Sketch016")
sketch17.AttachmentSupport = (doc.getObject("XZ_Plane"), [""])
sketch17.MapMode = "FlatFace"
sketch17.addGeometry(Part.Circle(App.Vector(-96, -109.5, 0), App.Vector(0, 0, 1), 3), False)
sketch17.addGeometry(Part.Circle(App.Vector(-54, -109.5, 0), App.Vector(0, 0, 1), 3), False)
sketch17.addGeometry(Part.Circle(App.Vector(-92.5, -33.8, 0), App.Vector(0, 0, 1), 3), False)
sketch17.addGeometry(Part.Circle(App.Vector(-57.5, -33.8, 0), App.Vector(0, 0, 1), 3), False)
sketch17.addGeometry(Part.Circle(App.Vector(57.5, -33.8, 0), App.Vector(0, 0, 1), 3), False)
sketch17.addGeometry(Part.Circle(App.Vector(92.5, -33.8, 0), App.Vector(0, 0, 1), 3), False)
sketch17.addGeometry(Part.Circle(App.Vector(54, -109.5, 0), App.Vector(0, 0, 1), 3), False)
sketch17.addGeometry(Part.Circle(App.Vector(96, -109.5, 0), App.Vector(0, 0, 1), 3), False)
sketch17.addConstraint(Sketcher.Constraint("Equal", 0, 1))
sketch17.addConstraint(Sketcher.Constraint("Equal", 1, 2))
sketch17.addConstraint(Sketcher.Constraint("Equal", 2, 3))
sketch17.addConstraint(Sketcher.Constraint("Equal", 3, 4))
sketch17.addConstraint(Sketcher.Constraint("Equal", 4, 5))
sketch17.addConstraint(Sketcher.Constraint("Equal", 5, 6))
sketch17.addConstraint(Sketcher.Constraint("Equal", 6, 7))
sketch17.addConstraint(Sketcher.Constraint("Symmetric", 3, 3, 4, 3, -2))
sketch17.addConstraint(Sketcher.Constraint("Symmetric", 2, 3, 5, 3, -2))
sketch17.addConstraint(Sketcher.Constraint("Symmetric", 1, 3, 6, 3, -2))
sketch17.addConstraint(Sketcher.Constraint("Symmetric", 0, 3, 7, 3, -2))
sketch17.addConstraint(Sketcher.Constraint("Horizontal", 0, 3, 1, 3))
sketch17.addConstraint(Sketcher.Constraint("Horizontal", 2, 3, 3, 3))
sketch17.addConstraint(Sketcher.Constraint("Diameter", 0, Q("5.9 mm")))
sketch17.addConstraint(Sketcher.Constraint("DistanceX", 0, 3, -1, 1, Q("96 mm")))
sketch17.addConstraint(Sketcher.Constraint("DistanceX", 1, 3, -1, 1, Q("54 mm")))
sketch17.addConstraint(Sketcher.Constraint("DistanceX", 2, 3, 3, 3, Q("35 mm")))
sketch17.addConstraint(Sketcher.Constraint("DistanceX", 3, 3, 4, 3, Q("115 mm")))
sketch17.addConstraint(Sketcher.Constraint("DistanceY", 0, 3, 2, 3, Q("75.7 mm")))
sketch17.addConstraint(Sketcher.Constraint("DistanceY", 0, 3, -1, 1, Q("109.52 mm")))
pocket14 = body.newObject("PartDesign::Pocket", "Pocket013")
pocket14.Profile = sketch17
pocket14.Length = 3.5

doc.recompute()
